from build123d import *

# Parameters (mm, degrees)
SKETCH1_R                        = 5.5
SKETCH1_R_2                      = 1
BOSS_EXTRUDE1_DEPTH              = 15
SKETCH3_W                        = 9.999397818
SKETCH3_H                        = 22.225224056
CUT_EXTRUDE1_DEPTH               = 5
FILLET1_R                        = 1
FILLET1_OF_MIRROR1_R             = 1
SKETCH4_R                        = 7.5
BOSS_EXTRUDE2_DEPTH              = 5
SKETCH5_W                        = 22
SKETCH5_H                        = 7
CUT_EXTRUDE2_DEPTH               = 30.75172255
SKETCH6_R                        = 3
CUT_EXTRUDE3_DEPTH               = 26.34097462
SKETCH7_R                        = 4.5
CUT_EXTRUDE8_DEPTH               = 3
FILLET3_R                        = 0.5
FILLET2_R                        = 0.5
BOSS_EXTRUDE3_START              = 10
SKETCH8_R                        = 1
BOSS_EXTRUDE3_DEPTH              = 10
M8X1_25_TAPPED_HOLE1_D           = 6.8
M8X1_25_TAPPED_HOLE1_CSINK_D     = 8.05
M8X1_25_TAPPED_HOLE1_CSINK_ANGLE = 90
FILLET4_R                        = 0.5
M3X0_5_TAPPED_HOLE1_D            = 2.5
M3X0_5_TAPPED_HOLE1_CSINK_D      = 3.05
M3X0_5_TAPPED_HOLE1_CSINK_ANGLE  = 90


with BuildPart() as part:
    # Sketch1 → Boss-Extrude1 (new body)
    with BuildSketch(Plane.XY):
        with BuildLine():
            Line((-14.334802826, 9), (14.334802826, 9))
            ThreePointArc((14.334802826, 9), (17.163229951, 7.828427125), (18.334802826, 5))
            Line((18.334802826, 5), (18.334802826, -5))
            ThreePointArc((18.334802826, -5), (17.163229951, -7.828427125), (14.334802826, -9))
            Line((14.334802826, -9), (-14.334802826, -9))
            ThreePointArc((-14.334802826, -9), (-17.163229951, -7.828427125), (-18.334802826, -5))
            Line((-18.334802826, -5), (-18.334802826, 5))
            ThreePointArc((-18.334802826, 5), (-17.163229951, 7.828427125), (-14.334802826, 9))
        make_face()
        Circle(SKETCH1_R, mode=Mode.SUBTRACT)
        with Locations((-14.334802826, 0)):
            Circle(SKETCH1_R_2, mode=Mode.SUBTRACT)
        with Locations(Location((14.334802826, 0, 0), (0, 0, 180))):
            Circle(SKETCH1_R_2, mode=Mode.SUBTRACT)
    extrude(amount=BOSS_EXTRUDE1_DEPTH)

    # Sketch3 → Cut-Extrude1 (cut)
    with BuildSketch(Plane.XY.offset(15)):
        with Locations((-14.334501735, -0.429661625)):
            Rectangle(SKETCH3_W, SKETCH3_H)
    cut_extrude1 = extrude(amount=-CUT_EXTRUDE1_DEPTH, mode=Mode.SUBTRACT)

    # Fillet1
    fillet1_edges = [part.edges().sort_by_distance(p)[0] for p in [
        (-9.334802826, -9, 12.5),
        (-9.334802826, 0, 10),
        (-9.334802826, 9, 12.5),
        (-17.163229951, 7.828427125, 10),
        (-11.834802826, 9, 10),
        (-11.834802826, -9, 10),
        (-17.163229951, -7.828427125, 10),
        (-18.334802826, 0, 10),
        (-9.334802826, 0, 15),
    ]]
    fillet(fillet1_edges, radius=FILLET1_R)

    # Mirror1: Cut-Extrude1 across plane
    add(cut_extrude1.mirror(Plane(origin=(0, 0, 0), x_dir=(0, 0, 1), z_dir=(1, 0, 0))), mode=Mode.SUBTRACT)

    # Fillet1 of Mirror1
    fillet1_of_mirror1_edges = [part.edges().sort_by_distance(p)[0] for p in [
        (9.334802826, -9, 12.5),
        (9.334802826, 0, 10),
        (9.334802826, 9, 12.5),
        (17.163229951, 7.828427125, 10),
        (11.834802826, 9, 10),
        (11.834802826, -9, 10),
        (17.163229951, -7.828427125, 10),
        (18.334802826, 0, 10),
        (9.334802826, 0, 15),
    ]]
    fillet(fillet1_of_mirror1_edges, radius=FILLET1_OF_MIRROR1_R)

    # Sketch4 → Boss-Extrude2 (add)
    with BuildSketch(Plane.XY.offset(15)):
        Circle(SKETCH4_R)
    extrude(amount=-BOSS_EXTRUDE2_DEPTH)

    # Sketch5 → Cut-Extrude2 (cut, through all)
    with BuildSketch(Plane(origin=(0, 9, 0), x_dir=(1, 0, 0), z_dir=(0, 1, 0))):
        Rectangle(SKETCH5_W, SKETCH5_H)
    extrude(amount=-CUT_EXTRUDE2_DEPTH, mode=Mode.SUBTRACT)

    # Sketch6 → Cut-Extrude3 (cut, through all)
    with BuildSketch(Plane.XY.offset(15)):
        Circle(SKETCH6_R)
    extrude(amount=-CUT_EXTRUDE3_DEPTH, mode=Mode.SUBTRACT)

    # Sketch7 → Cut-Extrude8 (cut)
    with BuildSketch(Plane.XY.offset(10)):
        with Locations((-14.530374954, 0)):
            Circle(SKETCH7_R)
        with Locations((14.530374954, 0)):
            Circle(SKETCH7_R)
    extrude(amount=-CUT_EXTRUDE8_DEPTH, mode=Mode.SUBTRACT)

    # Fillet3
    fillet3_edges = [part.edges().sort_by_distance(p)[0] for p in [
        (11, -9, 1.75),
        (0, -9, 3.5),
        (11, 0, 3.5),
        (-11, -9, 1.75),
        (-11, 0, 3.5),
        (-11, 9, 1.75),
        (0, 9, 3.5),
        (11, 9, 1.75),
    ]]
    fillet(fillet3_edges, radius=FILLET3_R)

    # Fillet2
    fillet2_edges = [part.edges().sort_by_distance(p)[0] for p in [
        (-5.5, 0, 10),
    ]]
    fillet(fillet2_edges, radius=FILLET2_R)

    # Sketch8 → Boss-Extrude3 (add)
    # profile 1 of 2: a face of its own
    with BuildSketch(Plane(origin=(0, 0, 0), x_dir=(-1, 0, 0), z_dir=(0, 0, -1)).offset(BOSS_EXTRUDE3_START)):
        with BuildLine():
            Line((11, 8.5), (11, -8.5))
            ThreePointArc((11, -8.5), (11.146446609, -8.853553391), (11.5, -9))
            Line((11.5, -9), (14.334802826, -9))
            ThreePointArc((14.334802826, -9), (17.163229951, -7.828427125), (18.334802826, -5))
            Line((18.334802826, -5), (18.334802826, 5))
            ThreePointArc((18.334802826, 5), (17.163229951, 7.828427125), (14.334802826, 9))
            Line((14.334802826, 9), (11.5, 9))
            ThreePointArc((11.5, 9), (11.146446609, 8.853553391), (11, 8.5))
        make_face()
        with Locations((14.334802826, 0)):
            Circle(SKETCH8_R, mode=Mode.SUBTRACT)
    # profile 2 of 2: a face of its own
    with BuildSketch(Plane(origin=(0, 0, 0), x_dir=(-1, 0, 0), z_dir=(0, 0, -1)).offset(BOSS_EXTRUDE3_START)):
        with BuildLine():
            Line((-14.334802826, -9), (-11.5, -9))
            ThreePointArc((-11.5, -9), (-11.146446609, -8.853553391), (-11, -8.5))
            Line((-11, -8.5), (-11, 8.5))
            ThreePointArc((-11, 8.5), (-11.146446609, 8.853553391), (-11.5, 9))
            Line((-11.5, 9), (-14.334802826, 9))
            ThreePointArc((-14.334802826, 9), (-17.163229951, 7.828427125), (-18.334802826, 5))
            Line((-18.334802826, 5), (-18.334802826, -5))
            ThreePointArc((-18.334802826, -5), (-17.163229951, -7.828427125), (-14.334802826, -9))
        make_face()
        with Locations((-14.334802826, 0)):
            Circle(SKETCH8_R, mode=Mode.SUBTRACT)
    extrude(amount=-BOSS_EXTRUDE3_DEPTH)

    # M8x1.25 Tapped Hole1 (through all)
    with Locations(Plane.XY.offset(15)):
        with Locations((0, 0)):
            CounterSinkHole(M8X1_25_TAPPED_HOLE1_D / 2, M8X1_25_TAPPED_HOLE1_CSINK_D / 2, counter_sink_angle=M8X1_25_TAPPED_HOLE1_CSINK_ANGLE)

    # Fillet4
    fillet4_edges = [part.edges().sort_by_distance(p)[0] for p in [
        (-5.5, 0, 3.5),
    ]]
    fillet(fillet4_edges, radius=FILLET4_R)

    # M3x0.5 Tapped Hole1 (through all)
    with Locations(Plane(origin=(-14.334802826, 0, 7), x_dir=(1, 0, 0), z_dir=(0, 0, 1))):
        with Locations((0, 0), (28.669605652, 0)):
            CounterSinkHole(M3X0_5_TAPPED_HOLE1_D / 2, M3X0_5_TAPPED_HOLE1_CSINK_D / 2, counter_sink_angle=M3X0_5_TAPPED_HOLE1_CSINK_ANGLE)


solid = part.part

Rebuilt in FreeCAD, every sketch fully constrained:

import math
import FreeCAD as App
import Part
import Sketcher
Q = App.Units.Quantity


def edges_at(feature, points):
    """Names of the edges that pass closest to the given points."""
    edges = feature.Shape.Edges
    near = lambda p: min(range(len(edges)), key=lambda i: edges[i].distToShape(Part.Vertex(*p))[0])
    return sorted({f"Edge{near(p) + 1}" for p in points})


def add_polygon(sketch, points):
    """Adds a closed chain of lines whose ends are joined by coincident constraints."""
    first, n = sketch.GeometryCount, len(points)
    for a, b in zip(points, points[1:] + points[:1]):
        sketch.addGeometry(Part.LineSegment(App.Vector(*a, 0), App.Vector(*b, 0)), False)
    for i in range(n):
        sketch.addConstraint(Sketcher.Constraint("Coincident", first + i, 2, first + (i + 1) % n, 1))

doc = App.newDocument("Part")
body = doc.addObject("PartDesign::Body", "Body")

sketch1 = body.newObject("Sketcher::SketchObject", "Sketch")
sketch1.AttachmentSupport = (doc.getObject("XY_Plane"), [""])
sketch1.MapMode = "FlatFace"
sketch1.addGeometry(Part.LineSegment(App.Vector(14.334803, 9, 0), App.Vector(-14.334803, 9, 0)), False)
sketch1.addGeometry(Part.ArcOfCircle(Part.Circle(App.Vector(-14.334803, 5, 0), App.Vector(0, 0, 1), 4), math.radians(90), math.radians(180)), False)
sketch1.addGeometry(Part.LineSegment(App.Vector(-18.334803, 5, 0), App.Vector(-18.334803, -5, 0)), False)
sketch1.addGeometry(Part.ArcOfCircle(Part.Circle(App.Vector(-14.334803, -5, 0), App.Vector(0, 0, 1), 4), math.radians(180), math.radians(270)), False)
sketch1.addGeometry(Part.LineSegment(App.Vector(-14.334803, -9, 0), App.Vector(14.334803, -9, 0)), False)
sketch1.addGeometry(Part.ArcOfCircle(Part.Circle(App.Vector(14.334803, -5, 0), App.Vector(0, 0, 1), 4), math.radians(-90), math.radians(0)), False)
sketch1.addGeometry(Part.LineSegment(App.Vector(18.334803, -5, 0), App.Vector(18.334803, 5, 0)), False)
sketch1.addGeometry(Part.ArcOfCircle(Part.Circle(App.Vector(14.334803, 5, 0), App.Vector(0, 0, 1), 4), math.radians(0), math.radians(90)), False)
sketch1.addGeometry(Part.Circle(App.Vector(14.334803, 0, 0), App.Vector(0, 0, 1), 1), False)
sketch1.addGeometry(Part.Circle(App.Vector(0, 0, 0), App.Vector(0, 0, 1), 5.5), False)
sketch1.addGeometry(Part.Circle(App.Vector(-14.334803, 0, 0), App.Vector(0, 0, 1), 1), False)
sketch1.addConstraint(Sketcher.Constraint("Tangent", 0, 2, 1, 1))
sketch1.addConstraint(Sketcher.Constraint("Tangent", 1, 2, 2, 1))
sketch1.addConstraint(Sketcher.Constraint("Tangent", 2, 2, 3, 1))
sketch1.addConstraint(Sketcher.Constraint("Tangent", 3, 2, 4, 1))
sketch1.addConstraint(Sketcher.Constraint("Tangent", 4, 2, 5, 1))
sketch1.addConstraint(Sketcher.Constraint("Tangent", 5, 2, 6, 1))
sketch1.addConstraint(Sketcher.Constraint("Tangent", 6, 2, 7, 1))
sketch1.addConstraint(Sketcher.Constraint("Tangent", 7, 2, 0, 1))
sketch1.addConstraint(Sketcher.Constraint("Horizontal", 0))
sketch1.addConstraint(Sketcher.Constraint("Vertical", 2))
sketch1.addConstraint(Sketcher.Constraint("Horizontal", 4))
sketch1.addConstraint(Sketcher.Constraint("Vertical", 6))
sketch1.addConstraint(Sketcher.Constraint("Coincident", 9, 3, -1, 1))
sketch1.addConstraint(Sketcher.Constraint("Equal", 1, 3))
sketch1.addConstraint(Sketcher.Constraint("Equal", 3, 5))
sketch1.addConstraint(Sketcher.Constraint("Equal", 5, 7))
sketch1.addConstraint(Sketcher.Constraint("Equal", 8, 10))
sketch1.addConstraint(Sketcher.Constraint("Symmetric", 1, 3, 5, 3, -1, 1))
sketch1.addConstraint(Sketcher.Constraint("Symmetric", 8, 3, 10, 3, -1, 1))
sketch1.addConstraint(Sketcher.Constraint("PointOnObject", 8, 3, -1))
sketch1.addConstraint(Sketcher.Constraint("Vertical", 7, 3, 8, 3))
sketch1.addConstraint(Sketcher.Constraint("Diameter", 8, Q("2 mm")))
sketch1.addConstraint(Sketcher.Constraint("Diameter", 9, Q("11 mm")))
sketch1.addConstraint(Sketcher.Constraint("Radius", 1, Q("4 mm")))
sketch1.addConstraint(Sketcher.Constraint("DistanceY", 2, 2, 2, 1, Q("10 mm")))
sketch1.addConstraint(Sketcher.Constraint("DistanceX", 0, 2, 0, 1, Q("28.669606 mm")))
pad1 = body.newObject("PartDesign::Pad", "Pad")
pad1.Profile = sketch1
pad1.Length = 15

sketch2 = body.newObject("Sketcher::SketchObject", "Sketch001")
sketch2.AttachmentSupport = (doc.getObject("XY_Plane"), [""])
sketch2.MapMode = "FlatFace"
sketch2.AttachmentOffset = App.Placement(App.Vector(0, 0, 15), App.Rotation())
add_polygon(sketch2, [(-19.334201, 10.68295), (-19.334201, -11.542274), (-9.334803, -11.542274), (-9.334803, 10.68295)])
sketch2.addConstraint(Sketcher.Constraint("Vertical", 0))
sketch2.addConstraint(Sketcher.Constraint("Horizontal", 1))
sketch2.addConstraint(Sketcher.Constraint("Vertical", 2))
sketch2.addConstraint(Sketcher.Constraint("Horizontal", 3))
sketch2.addConstraint(Sketcher.Constraint("DistanceX", 0, 2, -1, 1, Q("19.334201 mm")))
sketch2.addConstraint(Sketcher.Constraint("DistanceX", 1, 1, 1, 2, Q("9.999398 mm")))
sketch2.addConstraint(Sketcher.Constraint("DistanceY", 0, 2, 0, 1, Q("22.225224 mm")))
sketch2.addConstraint(Sketcher.Constraint("DistanceY", -1, 1, 2, 2, Q("10.68295 mm")))
pocket1 = body.newObject("PartDesign::Pocket", "Pocket")
pocket1.Profile = sketch2
pocket1.Length = 5
doc.recompute()

fillet = body.newObject("PartDesign::Fillet", "Fillet")
fillet.Base = (pocket1, edges_at(pocket1, [
    (-9.335, -9, 12.5),
    (-9.335, 0, 10),
    (-9.335, 9, 12.5),
    (-17.163, 7.828, 10),
    (-11.835, 9, 10),
    (-11.835, -9, 10),
    (-17.163, -7.828, 10),
    (-18.335, 0, 10),
    (-9.335, 0, 15),
]))
fillet.Radius = 1
doc.recompute()

mirrored = body.newObject("PartDesign::Mirrored", "Mirrored")
mirrored.Originals = [pocket1]
mirrored.MirrorPlane = (doc.getObject("YZ_Plane"), [""])
body.Tip = mirrored
doc.recompute()

fillet2 = body.newObject("PartDesign::Fillet", "Fillet001")
fillet2.Base = (mirrored, edges_at(mirrored, [
    (9.335, -9, 12.5),
    (9.335, 0, 10),
    (9.335, 9, 12.5),
    (17.163, 7.828, 10),
    (11.835, 9, 10),
    (11.835, -9, 10),
    (17.163, -7.828, 10),
    (18.335, 0, 10),
    (9.335, 0, 15),
]))
fillet2.Radius = 1

sketch3 = body.newObject("Sketcher::SketchObject", "Sketch002")
sketch3.AttachmentSupport = (doc.getObject("XY_Plane"), [""])
sketch3.MapMode = "FlatFace"
sketch3.AttachmentOffset = App.Placement(App.Vector(0, 0, 15), App.Rotation())
sketch3.addGeometry(Part.Circle(App.Vector(0, 0, 0), App.Vector(0, 0, 1), 7.5), False)
sketch3.addConstraint(Sketcher.Constraint("Coincident", 0, 3, -1, 1))
sketch3.addConstraint(Sketcher.Constraint("Diameter", 0, Q("15 mm")))
pad2 = body.newObject("PartDesign::Pad", "Pad001")
pad2.Profile = sketch3
pad2.Length = 5
pad2.Reversed = True

sketch4 = body.newObject("Sketcher::SketchObject", "Sketch003")
sketch4.AttachmentSupport = (doc.getObject("XZ_Plane"), [""])
sketch4.MapMode = "FlatFace"
sketch4.AttachmentOffset = App.Placement(App.Vector(0, 0, -9), App.Rotation())
add_polygon(sketch4, [(-11, -3.5), (-11, 3.5), (11, 3.5), (11, -3.5)])
sketch4.addConstraint(Sketcher.Constraint("Vertical", 0))
sketch4.addConstraint(Sketcher.Constraint("Horizontal", 1))
sketch4.addConstraint(Sketcher.Constraint("Vertical", 2))
sketch4.addConstraint(Sketcher.Constraint("Horizontal", 3))
sketch4.addConstraint(Sketcher.Constraint("Symmetric", 0, 2, 2, 2, -1, 1))
sketch4.addConstraint(Sketcher.Constraint("DistanceX", 1, 1, 1, 2, Q("22 mm")))
sketch4.addConstraint(Sketcher.Constraint("DistanceY", 0, 1, 0, 2, Q("7 mm")))
pocket2 = body.newObject("PartDesign::Pocket", "Pocket001")
pocket2.Profile = sketch4
pocket2.Type = "ThroughAll"
pocket2.Reversed = True

sketch5 = body.newObject("Sketcher::SketchObject", "Sketch004")
sketch5.AttachmentSupport = (doc.getObject("XY_Plane"), [""])
sketch5.MapMode = "FlatFace"
sketch5.AttachmentOffset = App.Placement(App.Vector(0, 0, 15), App.Rotation())
sketch5.addGeometry(Part.Circle(App.Vector(0, 0, 0), App.Vector(0, 0, 1), 3), False)
sketch5.addConstraint(Sketcher.Constraint("Coincident", 0, 3, -1, 1))
sketch5.addConstraint(Sketcher.Constraint("Diameter", 0, Q("6 mm")))
pocket3 = body.newObject("PartDesign::Pocket", "Pocket002")
pocket3.Profile = sketch5
pocket3.Type = "ThroughAll"

sketch6 = body.newObject("Sketcher::SketchObject", "Sketch005")
sketch6.AttachmentSupport = (doc.getObject("XY_Plane"), [""])
sketch6.MapMode = "FlatFace"
sketch6.AttachmentOffset = App.Placement(App.Vector(0, 0, 10), App.Rotation())
sketch6.addGeometry(Part.Circle(App.Vector(-14.530375, 0, 0), App.Vector(0, 0, 1), 4.5), False)
sketch6.addGeometry(Part.Circle(App.Vector(14.530375, 0, 0), App.Vector(0, 0, 1), 4.5), False)
sketch6.addConstraint(Sketcher.Constraint("Equal", 0, 1))
sketch6.addConstraint(Sketcher.Constraint("Symmetric", 0, 3, 1, 3, -1, 1))
sketch6.addConstraint(Sketcher.Constraint("PointOnObject", 0, 3, -1))
sketch6.addConstraint(Sketcher.Constraint("Diameter", 0, Q("9 mm")))
sketch6.addConstraint(Sketcher.Constraint("DistanceX", 0, 3, 1, 3, Q("29.06075 mm")))
pocket4 = body.newObject("PartDesign::Pocket", "Pocket003")
pocket4.Profile = sketch6
pocket4.Length = 3
doc.recompute()

fillet3 = body.newObject("PartDesign::Fillet", "Fillet002")
fillet3.Base = (pocket4, edges_at(pocket4, [
    (11, -9, 1.75),
    (0, -9, 3.5),
    (11, 0, 3.5),
    (-11, -9, 1.75),
    (-11, 0, 3.5),
    (-11, 9, 1.75),
    (0, 9, 3.5),
    (11, 9, 1.75),
]))
fillet3.Radius = 0.5
doc.recompute()

fillet4 = body.newObject("PartDesign::Fillet", "Fillet003")
fillet4.Base = (fillet3, edges_at(fillet3, [(-5.5, 0, 10)]))
fillet4.Radius = 0.5

sketch7 = body.newObject("Sketcher::SketchObject", "Sketch006")
sketch7.AttachmentSupport = (doc.getObject("XY_Plane"), [""])
sketch7.MapMode = "FlatFace"
sketch7.AttachmentOffset = App.Placement(App.Vector(0, 0, -10), App.Rotation())
sketch7.addGeometry(Part.LineSegment(App.Vector(-11, 8.5, 0), App.Vector(-11, -8.5, 0)), False)
sketch7.addGeometry(Part.ArcOfCircle(Part.Circle(App.Vector(-11.5, -8.5, 0), App.Vector(0, 0, 1), 0.5), math.radians(-90), math.radians(0)), False)
sketch7.addGeometry(Part.LineSegment(App.Vector(-11.5, -9, 0), App.Vector(-14.334803, -9, 0)), False)
sketch7.addGeometry(Part.ArcOfCircle(Part.Circle(App.Vector(-14.334803, -5, 0), App.Vector(0, 0, 1), 4), math.radians(180), math.radians(270)), False)
sketch7.addGeometry(Part.LineSegment(App.Vector(-18.334803, -5, 0), App.Vector(-18.334803, 5, 0)), False)
sketch7.addGeometry(Part.ArcOfCircle(Part.Circle(App.Vector(-14.334803, 5, 0), App.Vector(0, 0, 1), 4), math.radians(90), math.radians(180)), False)
sketch7.addGeometry(Part.LineSegment(App.Vector(-14.334803, 9, 0), App.Vector(-11.5, 9, 0)), False)
sketch7.addGeometry(Part.ArcOfCircle(Part.Circle(App.Vector(-11.5, 8.5, 0), App.Vector(0, 0, 1), 0.5), math.radians(0), math.radians(90)), False)
sketch7.addGeometry(Part.Circle(App.Vector(-14.334803, 0, 0), App.Vector(0, 0, 1), 1), False)
sketch7.addGeometry(Part.LineSegment(App.Vector(14.334803, -9, 0), App.Vector(11.5, -9, 0)), False)
sketch7.addGeometry(Part.ArcOfCircle(Part.Circle(App.Vector(11.5, -8.5, 0), App.Vector(0, 0, 1), 0.5), math.radians(180), math.radians(270)), False)
sketch7.addGeometry(Part.LineSegment(App.Vector(11, -8.5, 0), App.Vector(11, 8.5, 0)), False)
sketch7.addGeometry(Part.ArcOfCircle(Part.Circle(App.Vector(11.5, 8.5, 0), App.Vector(0, 0, 1), 0.5), math.radians(90), math.radians(180)), False)
sketch7.addGeometry(Part.LineSegment(App.Vector(11.5, 9, 0), App.Vector(14.334803, 9, 0)), False)
sketch7.addGeometry(Part.ArcOfCircle(Part.Circle(App.Vector(14.334803, 5, 0), App.Vector(0, 0, 1), 4), math.radians(0), math.radians(90)), False)
sketch7.addGeometry(Part.LineSegment(App.Vector(18.334803, 5, 0), App.Vector(18.334803, -5, 0)), False)
sketch7.addGeometry(Part.ArcOfCircle(Part.Circle(App.Vector(14.334803, -5, 0), App.Vector(0, 0, 1), 4), math.radians(-90), math.radians(0)), False)
sketch7.addGeometry(Part.Circle(App.Vector(14.334803, 0, 0), App.Vector(0, 0, 1), 1), False)
sketch7.addConstraint(Sketcher.Constraint("Tangent", 0, 2, 1, 2))
sketch7.addConstraint(Sketcher.Constraint("Tangent", 1, 1, 2, 1))
sketch7.addConstraint(Sketcher.Constraint("Tangent", 2, 2, 3, 2))
sketch7.addConstraint(Sketcher.Constraint("Tangent", 3, 1, 4, 1))
sketch7.addConstraint(Sketcher.Constraint("Tangent", 4, 2, 5, 2))
sketch7.addConstraint(Sketcher.Constraint("Tangent", 5, 1, 6, 1))
sketch7.addConstraint(Sketcher.Constraint("Tangent", 6, 2, 7, 2))
sketch7.addConstraint(Sketcher.Constraint("Tangent", 7, 1, 0, 1))
sketch7.addConstraint(Sketcher.Constraint("Tangent", 9, 2, 10, 2))
sketch7.addConstraint(Sketcher.Constraint("Tangent", 10, 1, 11, 1))
sketch7.addConstraint(Sketcher.Constraint("Tangent", 11, 2, 12, 2))
sketch7.addConstraint(Sketcher.Constraint("Tangent", 12, 1, 13, 1))
sketch7.addConstraint(Sketcher.Constraint("Tangent", 13, 2, 14, 2))
sketch7.addConstraint(Sketcher.Constraint("Tangent", 14, 1, 15, 1))
sketch7.addConstraint(Sketcher.Constraint("Tangent", 15, 2, 16, 2))
sketch7.addConstraint(Sketcher.Constraint("Tangent", 16, 1, 9, 1))
sketch7.addConstraint(Sketcher.Constraint("Vertical", 0))
sketch7.addConstraint(Sketcher.Constraint("Horizontal", 2))
sketch7.addConstraint(Sketcher.Constraint("Vertical", 4))
sketch7.addConstraint(Sketcher.Constraint("Horizontal", 6))
sketch7.addConstraint(Sketcher.Constraint("Horizontal", 9))
sketch7.addConstraint(Sketcher.Constraint("Vertical", 11))
sketch7.addConstraint(Sketcher.Constraint("Horizontal", 13))
sketch7.addConstraint(Sketcher.Constraint("Vertical", 15))
sketch7.addConstraint(Sketcher.Constraint("Equal", 3, 5))
sketch7.addConstraint(Sketcher.Constraint("Equal", 1, 7))
sketch7.addConstraint(Sketcher.Constraint("Equal", 7, 10))
sketch7.addConstraint(Sketcher.Constraint("Equal", 10, 12))
sketch7.addConstraint(Sketcher.Constraint("Equal", 5, 14))
sketch7.addConstraint(Sketcher.Constraint("Equal", 14, 16))
sketch7.addConstraint(Sketcher.Constraint("Equal", 8, 17))
sketch7.addConstraint(Sketcher.Constraint("Symmetric", 7, 3, 10, 3, -1, 1))
sketch7.addConstraint(Sketcher.Constraint("Symmetric", 3, 3, 14, 3, -1, 1))
sketch7.addConstraint(Sketcher.Constraint("Symmetric", 8, 3, 17, 3, -1, 1))
sketch7.addConstraint(Sketcher.Constraint("PointOnObject", 8, 3, -1))
sketch7.addConstraint(Sketcher.Constraint("Horizontal", 1, 3, 10, 3))
sketch7.addConstraint(Sketcher.Constraint("Vertical", 5, 3, 8, 3))
sketch7.addConstraint(Sketcher.Constraint("Diameter", 8, Q("2 mm")))
sketch7.addConstraint(Sketcher.Constraint("Radius", 3, Q("4 mm")))
sketch7.addConstraint(Sketcher.Constraint("Radius", 1, Q("0.5 mm")))
sketch7.addConstraint(Sketcher.Constraint("DistanceY", 0, 2, 0, 1, Q("17 mm")))
sketch7.addConstraint(Sketcher.Constraint("DistanceX", 0, 2, -1, 1, Q("11 mm")))
sketch7.addConstraint(Sketcher.Constraint("DistanceX", 2, 2, 2, 1, Q("2.834803 mm")))
pad3 = body.newObject("PartDesign::Pad", "Pad002")
pad3.Profile = sketch7
pad3.Length = 10

sketch8 = body.newObject("Sketcher::SketchObject", "Sketch007")
sketch8.AttachmentSupport = (doc.getObject("XY_Plane"), [""])
sketch8.MapMode = "FlatFace"
sketch8.AttachmentOffset = App.Placement(App.Vector(0, 0, 15), App.Rotation())
sketch8.addGeometry(Part.Circle(App.Vector(0, 0, 0), App.Vector(0, 0, 1), 3.4), False)
sketch8.addConstraint(Sketcher.Constraint("Coincident", 0, 3, -1, 1))
sketch8.addConstraint(Sketcher.Constraint("Diameter", 0, Q("6.8 mm")))
doc.recompute()
hole = body.newObject("PartDesign::Hole", "Hole")
hole.Profile = sketch8
hole.ThreadType = "None"
hole.Diameter = 6.8
hole.DepthType = "ThroughAll"
hole.HoleCutType = "Countersink"
hole.HoleCutDiameter = 8.05
hole.HoleCutCountersinkAngle = 90
doc.recompute()

fillet5 = body.newObject("PartDesign::Fillet", "Fillet004")
fillet5.Base = (hole, edges_at(hole, [(-5.5, 0, 3.5)]))
fillet5.Radius = 0.5

sketch9 = body.newObject("Sketcher::SketchObject", "Sketch008")
sketch9.AttachmentSupport = (doc.getObject("XY_Plane"), [""])
sketch9.MapMode = "FlatFace"
sketch9.AttachmentOffset = App.Placement(App.Vector(0, 0, 7), App.Rotation())
sketch9.addGeometry(Part.Circle(App.Vector(-14.334803, 0, 0), App.Vector(0, 0, 1), 1.25), False)
sketch9.addGeometry(Part.Circle(App.Vector(14.334803, 0, 0), App.Vector(0, 0, 1), 1.25), False)
sketch9.addConstraint(Sketcher.Constraint("Equal", 0, 1))
sketch9.addConstraint(Sketcher.Constraint("Symmetric", 0, 3, 1, 3, -1, 1))
sketch9.addConstraint(Sketcher.Constraint("PointOnObject", 0, 3, -1))
sketch9.addConstraint(Sketcher.Constraint("Diameter", 0, Q("2.5 mm")))
sketch9.addConstraint(Sketcher.Constraint("DistanceX", 0, 3, -1, 1, Q("14.334803 mm")))
doc.recompute()
hole2 = body.newObject("PartDesign::Hole", "Hole001")
hole2.Profile = sketch9
hole2.ThreadType = "None"
hole2.Diameter = 2.5
hole2.DepthType = "ThroughAll"
hole2.HoleCutType = "Countersink"
hole2.HoleCutDiameter = 3.05
hole2.HoleCutCountersinkAngle = 90

doc.recompute()
